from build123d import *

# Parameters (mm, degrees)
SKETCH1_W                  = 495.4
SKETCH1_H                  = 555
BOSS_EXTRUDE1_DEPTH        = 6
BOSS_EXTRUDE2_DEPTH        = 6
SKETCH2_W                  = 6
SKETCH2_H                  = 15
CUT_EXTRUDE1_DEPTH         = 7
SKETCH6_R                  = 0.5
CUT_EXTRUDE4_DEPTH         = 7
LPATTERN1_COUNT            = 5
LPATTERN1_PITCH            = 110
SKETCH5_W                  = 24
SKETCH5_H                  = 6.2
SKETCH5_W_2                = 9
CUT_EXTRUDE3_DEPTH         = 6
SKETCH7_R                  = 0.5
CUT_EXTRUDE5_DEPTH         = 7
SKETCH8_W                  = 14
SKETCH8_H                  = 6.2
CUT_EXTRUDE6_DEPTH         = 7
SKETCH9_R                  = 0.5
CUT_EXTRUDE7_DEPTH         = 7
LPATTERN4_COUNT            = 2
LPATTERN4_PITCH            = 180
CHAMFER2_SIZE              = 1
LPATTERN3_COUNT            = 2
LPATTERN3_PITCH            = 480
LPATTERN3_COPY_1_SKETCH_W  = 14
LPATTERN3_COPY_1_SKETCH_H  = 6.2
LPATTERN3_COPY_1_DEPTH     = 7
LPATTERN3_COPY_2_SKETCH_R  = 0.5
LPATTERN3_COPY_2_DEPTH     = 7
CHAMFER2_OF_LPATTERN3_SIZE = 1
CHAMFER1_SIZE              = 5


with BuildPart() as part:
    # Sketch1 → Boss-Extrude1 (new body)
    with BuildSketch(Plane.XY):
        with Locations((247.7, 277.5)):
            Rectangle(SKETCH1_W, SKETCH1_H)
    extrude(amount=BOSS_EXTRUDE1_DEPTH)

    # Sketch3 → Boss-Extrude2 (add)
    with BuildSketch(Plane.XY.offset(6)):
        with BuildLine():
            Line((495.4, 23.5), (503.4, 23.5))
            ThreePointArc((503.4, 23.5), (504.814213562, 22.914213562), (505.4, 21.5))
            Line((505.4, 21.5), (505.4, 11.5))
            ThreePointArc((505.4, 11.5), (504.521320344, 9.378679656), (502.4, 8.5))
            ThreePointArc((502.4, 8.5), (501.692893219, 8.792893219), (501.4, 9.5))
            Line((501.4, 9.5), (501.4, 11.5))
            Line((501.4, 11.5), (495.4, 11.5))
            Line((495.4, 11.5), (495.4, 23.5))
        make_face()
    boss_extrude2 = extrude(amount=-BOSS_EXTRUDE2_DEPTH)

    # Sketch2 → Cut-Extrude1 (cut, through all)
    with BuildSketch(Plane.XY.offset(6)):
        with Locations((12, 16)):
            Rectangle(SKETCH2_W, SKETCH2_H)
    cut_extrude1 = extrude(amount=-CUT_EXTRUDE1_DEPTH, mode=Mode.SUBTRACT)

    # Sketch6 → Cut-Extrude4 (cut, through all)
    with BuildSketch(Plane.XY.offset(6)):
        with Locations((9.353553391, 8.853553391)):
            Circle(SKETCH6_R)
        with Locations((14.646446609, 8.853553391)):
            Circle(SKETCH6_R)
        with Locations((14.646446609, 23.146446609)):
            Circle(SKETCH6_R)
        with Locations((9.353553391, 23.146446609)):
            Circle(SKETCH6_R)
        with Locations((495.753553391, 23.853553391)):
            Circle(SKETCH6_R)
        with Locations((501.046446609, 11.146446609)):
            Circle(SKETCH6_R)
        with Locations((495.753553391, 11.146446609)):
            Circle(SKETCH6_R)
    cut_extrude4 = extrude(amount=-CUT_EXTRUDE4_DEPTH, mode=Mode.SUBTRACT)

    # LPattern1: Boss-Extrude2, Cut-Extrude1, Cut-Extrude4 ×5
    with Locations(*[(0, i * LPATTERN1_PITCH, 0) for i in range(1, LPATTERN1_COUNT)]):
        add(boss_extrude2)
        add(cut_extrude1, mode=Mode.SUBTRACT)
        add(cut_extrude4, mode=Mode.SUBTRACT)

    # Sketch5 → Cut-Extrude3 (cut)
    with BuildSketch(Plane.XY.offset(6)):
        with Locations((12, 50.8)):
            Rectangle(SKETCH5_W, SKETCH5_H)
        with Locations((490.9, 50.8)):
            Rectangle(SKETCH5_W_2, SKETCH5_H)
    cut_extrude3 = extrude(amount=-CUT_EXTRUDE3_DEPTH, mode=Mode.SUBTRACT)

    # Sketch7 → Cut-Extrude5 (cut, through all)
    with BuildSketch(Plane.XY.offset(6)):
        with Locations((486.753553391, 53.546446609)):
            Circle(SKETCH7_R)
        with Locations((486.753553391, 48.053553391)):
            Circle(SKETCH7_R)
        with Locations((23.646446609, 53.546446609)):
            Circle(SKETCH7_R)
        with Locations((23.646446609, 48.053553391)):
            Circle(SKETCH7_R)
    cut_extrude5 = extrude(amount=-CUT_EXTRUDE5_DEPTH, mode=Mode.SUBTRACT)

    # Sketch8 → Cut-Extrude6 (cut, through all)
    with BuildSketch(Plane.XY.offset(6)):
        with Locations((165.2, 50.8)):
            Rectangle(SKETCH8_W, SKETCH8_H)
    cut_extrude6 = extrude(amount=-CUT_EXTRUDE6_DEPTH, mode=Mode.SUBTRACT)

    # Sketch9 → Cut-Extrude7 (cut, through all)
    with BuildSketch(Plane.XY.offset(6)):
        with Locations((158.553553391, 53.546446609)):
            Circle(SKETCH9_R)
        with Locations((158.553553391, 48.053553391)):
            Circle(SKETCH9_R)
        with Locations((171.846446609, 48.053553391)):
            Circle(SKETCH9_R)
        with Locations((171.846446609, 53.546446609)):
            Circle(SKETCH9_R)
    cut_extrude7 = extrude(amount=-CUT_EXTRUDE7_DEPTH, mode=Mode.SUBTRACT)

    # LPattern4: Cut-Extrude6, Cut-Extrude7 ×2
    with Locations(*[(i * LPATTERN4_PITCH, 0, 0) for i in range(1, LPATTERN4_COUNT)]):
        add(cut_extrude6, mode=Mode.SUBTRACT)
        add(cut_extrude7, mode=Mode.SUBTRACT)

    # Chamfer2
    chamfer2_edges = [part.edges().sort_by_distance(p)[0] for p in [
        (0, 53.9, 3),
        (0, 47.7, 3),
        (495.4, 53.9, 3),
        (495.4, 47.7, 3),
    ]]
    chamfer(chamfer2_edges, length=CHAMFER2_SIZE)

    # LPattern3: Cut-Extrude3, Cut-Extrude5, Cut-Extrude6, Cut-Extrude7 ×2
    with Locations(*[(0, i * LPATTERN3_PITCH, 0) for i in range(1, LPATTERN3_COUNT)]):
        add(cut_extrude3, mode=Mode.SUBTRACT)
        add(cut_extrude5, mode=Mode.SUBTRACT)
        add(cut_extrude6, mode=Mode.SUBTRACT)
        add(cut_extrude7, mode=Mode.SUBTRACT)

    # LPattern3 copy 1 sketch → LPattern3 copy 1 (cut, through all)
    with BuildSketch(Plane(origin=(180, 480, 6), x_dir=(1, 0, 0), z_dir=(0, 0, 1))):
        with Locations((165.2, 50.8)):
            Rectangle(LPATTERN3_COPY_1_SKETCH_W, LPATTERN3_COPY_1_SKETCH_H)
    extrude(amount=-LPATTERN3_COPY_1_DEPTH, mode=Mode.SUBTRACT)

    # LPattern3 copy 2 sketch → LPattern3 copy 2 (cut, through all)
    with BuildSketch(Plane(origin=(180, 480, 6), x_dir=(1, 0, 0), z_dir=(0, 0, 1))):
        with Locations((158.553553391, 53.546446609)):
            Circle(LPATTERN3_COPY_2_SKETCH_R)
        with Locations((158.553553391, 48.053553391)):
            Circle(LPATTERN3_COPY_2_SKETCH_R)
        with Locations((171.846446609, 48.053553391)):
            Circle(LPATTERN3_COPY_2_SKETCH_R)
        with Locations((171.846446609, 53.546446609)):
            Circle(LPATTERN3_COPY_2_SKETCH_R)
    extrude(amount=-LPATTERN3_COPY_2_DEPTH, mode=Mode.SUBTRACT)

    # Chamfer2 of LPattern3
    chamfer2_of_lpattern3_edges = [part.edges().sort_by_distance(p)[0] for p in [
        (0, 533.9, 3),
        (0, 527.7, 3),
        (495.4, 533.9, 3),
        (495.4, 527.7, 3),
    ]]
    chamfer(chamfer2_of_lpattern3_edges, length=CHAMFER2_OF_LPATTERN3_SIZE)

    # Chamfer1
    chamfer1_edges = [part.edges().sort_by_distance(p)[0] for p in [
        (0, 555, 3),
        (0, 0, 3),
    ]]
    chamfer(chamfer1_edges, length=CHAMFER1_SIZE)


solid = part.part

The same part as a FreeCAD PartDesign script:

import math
import FreeCAD as App
import Part
import Sketcher


def edges_at(feature, points):
    """Names of the edges that pass closest to the given points."""
    edges = feature.Shape.Edges
    near = lambda p: min(range(len(edges)), key=lambda i: edges[i].distToShape(Part.Vertex(*p))[0])
    return sorted({f"Edge{near(p) + 1}" for p in points})


def add_polygon(sketch, points):
    """Adds a closed chain of lines whose ends are joined by coincident constraints."""
    first, n = sketch.GeometryCount, len(points)
    for a, b in zip(points, points[1:] + points[:1]):
        sketch.addGeometry(Part.LineSegment(App.Vector(*a, 0), App.Vector(*b, 0)), False)
    for i in range(n):
        sketch.addConstraint(Sketcher.Constraint("Coincident", first + i, 2, first + (i + 1) % n, 1))

doc = App.newDocument("Part")
body = doc.addObject("PartDesign::Body", "Body")

sketch1 = doc.addObject("Sketcher::SketchObject", "Sketch")
body.addObject(sketch1)
sketch1.AttachmentSupport = (doc.XY_Plane, [""])
sketch1.MapMode = "FlatFace"
add_polygon(sketch1, [(0, 555), (0, 0), (495, 0), (495, 555)])
sketch1.addConstraint([
    Sketcher.Constraint("Vertical", 0),
    Sketcher.Constraint("Horizontal", 1),
    Sketcher.Constraint("Vertical", 2),
    Sketcher.Constraint("Horizontal", 3),
    Sketcher.Constraint("Coincident", 0, 2, -1, 1),
    Sketcher.Constraint("DistanceY", 0, 2, 0, 1, 555.0),
    Sketcher.Constraint("DistanceX", 1, 1, 1, 2, 495.4),
])
pad1 = doc.addObject("PartDesign::Pad", "Pad")
body.addObject(pad1)
pad1.Profile = sketch1
pad1.Length = 6

sketch2 = doc.addObject("Sketcher::SketchObject", "Sketch001")
body.addObject(sketch2)
sketch2.AttachmentSupport = (doc.XY_Plane, [""])
sketch2.MapMode = "FlatFace"
sketch2.AttachmentOffset = App.Placement(App.Vector(0, 0, 6), App.Rotation())
sketch2.addGeometry([
    Part.LineSegment(App.Vector(503.4, 23.5, 0), App.Vector(495.4, 23.5, 0)),
    Part.LineSegment(App.Vector(495.4, 23.5, 0), App.Vector(495.4, 11.5, 0)),
    Part.LineSegment(App.Vector(495.4, 11.5, 0), App.Vector(501.4, 11.5, 0)),
    Part.LineSegment(App.Vector(501.4, 11.5, 0), App.Vector(501.4, 9.5, 0)),
    Part.ArcOfCircle(Part.Circle(App.Vector(502.4, 9.5, 0), App.Vector(0, 0, 1), 1), math.radians(-180), math.radians(-90)),
    Part.ArcOfCircle(Part.Circle(App.Vector(502.4, 11.5, 0), App.Vector(0, 0, 1), 3), math.radians(-90), math.radians(0)),
    Part.LineSegment(App.Vector(505.4, 11.5, 0), App.Vector(505.4, 21.5, 0)),
    Part.ArcOfCircle(Part.Circle(App.Vector(503.4, 21.5, 0), App.Vector(0, 0, 1), 2), math.radians(0), math.radians(90)),
], False)
sketch2.addConstraint([
    Sketcher.Constraint("Coincident", 0, 2, 1, 1),
    Sketcher.Constraint("Coincident", 1, 2, 2, 1),
    Sketcher.Constraint("Coincident", 2, 2, 3, 1),
    Sketcher.Constraint("Tangent", 3, 2, 4, 1),
    Sketcher.Constraint("Tangent", 4, 2, 5, 1),
    Sketcher.Constraint("Tangent", 5, 2, 6, 1),
    Sketcher.Constraint("Tangent", 6, 2, 7, 1),
    Sketcher.Constraint("Tangent", 7, 2, 0, 1),
    Sketcher.Constraint("Horizontal", 0),
    Sketcher.Constraint("Vertical", 1),
    Sketcher.Constraint("Horizontal", 2),
    Sketcher.Constraint("Vertical", 3),
    Sketcher.Constraint("Vertical", 6),
    Sketcher.Constraint("Horizontal", 5, 3, 1, 2),
    Sketcher.Constraint("Vertical", 4, 3, 5, 3),
    Sketcher.Constraint("Radius", 4, 1.0),
    Sketcher.Constraint("Radius", 5, 3.0),
    Sketcher.Constraint("Radius", 7, 2.0),
    Sketcher.Constraint("DistanceX", 0, 2, 0, 1, 8.0),
    Sketcher.Constraint("DistanceY", 1, 2, 1, 1, 12.0),
    Sketcher.Constraint("DistanceX", -1, 1, 4, 3, 502.4),
    Sketcher.Constraint("DistanceY", -1, 1, 4, 3, 9.5),
])
pad2 = doc.addObject("PartDesign::Pad", "Pad001")
body.addObject(pad2)
pad2.Profile = sketch2
pad2.Length = 6
pad2.Reversed = True

sketch3 = doc.addObject("Sketcher::SketchObject", "Sketch002")
body.addObject(sketch3)
sketch3.AttachmentSupport = (doc.XY_Plane, [""])
sketch3.MapMode = "FlatFace"
sketch3.AttachmentOffset = App.Placement(App.Vector(0, 0, 6), App.Rotation())
add_polygon(sketch3, [(9, 24), (9, 8), (15, 8), (15, 24)])
sketch3.addConstraint([
    Sketcher.Constraint("Vertical", 0),
    Sketcher.Constraint("Horizontal", 1),
    Sketcher.Constraint("Vertical", 2),
    Sketcher.Constraint("Horizontal", 3),
    Sketcher.Constraint("DistanceX", 1, 1, 1, 2, 6.0),
    Sketcher.Constraint("DistanceY", 0, 2, 0, 1, 15.0),
    Sketcher.Constraint("DistanceX", -1, 1, 0, 2, 9.0),
    Sketcher.Constraint("DistanceY", -1, 1, 0, 2, 8.5),
])
pocket1 = doc.addObject("PartDesign::Pocket", "Pocket")
body.addObject(pocket1)
pocket1.Profile = sketch3
pocket1.Type = "ThroughAll"

sketch4 = doc.addObject("Sketcher::SketchObject", "Sketch003")
body.addObject(sketch4)
sketch4.AttachmentSupport = (doc.XY_Plane, [""])
sketch4.MapMode = "FlatFace"
sketch4.AttachmentOffset = App.Placement(App.Vector(0, 0, 6), App.Rotation())
sketch4.addGeometry([
    Part.Circle(App.Vector(9.4, 8.9, 0), App.Vector(0, 0, 1), 0.5),
    Part.Circle(App.Vector(14.6, 8.9, 0), App.Vector(0, 0, 1), 0.5),
    Part.Circle(App.Vector(14.6, 23.1, 0), App.Vector(0, 0, 1), 0.5),
    Part.Circle(App.Vector(9.4, 23.1, 0), App.Vector(0, 0, 1), 0.5),
    Part.Circle(App.Vector(495.8, 23.9, 0), App.Vector(0, 0, 1), 0.5),
    Part.Circle(App.Vector(501, 11.1, 0), App.Vector(0, 0, 1), 0.5),
    Part.Circle(App.Vector(495.8, 11.1, 0), App.Vector(0, 0, 1), 0.5),
], False)
sketch4.addConstraint([
    Sketcher.Constraint("Equal", 0, 1),
    Sketcher.Constraint("Equal", 1, 2),
    Sketcher.Constraint("Equal", 2, 3),
    Sketcher.Constraint("Equal", 3, 4),
    Sketcher.Constraint("Equal", 4, 5),
    Sketcher.Constraint("Equal", 5, 6),
    Sketcher.Constraint("Horizontal", 0, 3, 1, 3),
    Sketcher.Constraint("Horizontal", 2, 3, 3, 3),
    Sketcher.Constraint("Horizontal", 5, 3, 6, 3),
    Sketcher.Constraint("Vertical", 1, 3, 2, 3),
    Sketcher.Constraint("Vertical", 0, 3, 3, 3),
    Sketcher.Constraint("Vertical", 4, 3, 6, 3),
    Sketcher.Constraint("Diameter", 0, 1.0),
    Sketcher.Constraint("DistanceY", 1, 3, 4, 3, 15.0),
    Sketcher.Constraint("DistanceY", 5, 3, 2, 3, 12.0),
    Sketcher.Constraint("DistanceX", 3, 3, 4, 3, 486.4),
    Sketcher.Constraint("DistanceX", 1, 3, 5, 3, 486.4),
    Sketcher.Constraint("DistanceX", -1, 1, 0, 3, 9.353553),
    Sketcher.Constraint("DistanceY", -1, 1, 0, 3, 8.853553),
    Sketcher.Constraint("DistanceX", -1, 1, 1, 3, 14.646447),
    Sketcher.Constraint("DistanceY", -1, 1, 2, 3, 23.146447),
])
pocket2 = doc.addObject("PartDesign::Pocket", "Pocket001")
body.addObject(pocket2)
pocket2.Profile = sketch4
pocket2.Type = "ThroughAll"
doc.recompute()

linearpattern = doc.addObject("PartDesign::LinearPattern", "LinearPattern")
body.addObject(linearpattern)
linearpattern.Originals = [pad2, pocket1, pocket2]
linearpattern.Direction = (doc.Y_Axis, [""])
linearpattern.Mode = "offset"
linearpattern.Offset = 110
linearpattern.Occurrences = 5
body.Tip = linearpattern

sketch5 = doc.addObject("Sketcher::SketchObject", "Sketch004")
body.addObject(sketch5)
sketch5.AttachmentSupport = (doc.XY_Plane, [""])
sketch5.MapMode = "FlatFace"
sketch5.AttachmentOffset = App.Placement(App.Vector(0, 0, 6), App.Rotation())
add_polygon(sketch5, [(0, 54), (0, 48), (24, 48), (24, 54)])
add_polygon(sketch5, [(486, 54), (486, 48), (495, 48), (495, 54)])
sketch5.addConstraint([
    Sketcher.Constraint("Vertical", 0),
    Sketcher.Constraint("Horizontal", 1),
    Sketcher.Constraint("Vertical", 2),
    Sketcher.Constraint("Horizontal", 3),
    Sketcher.Constraint("Vertical", 4),
    Sketcher.Constraint("Horizontal", 5),
    Sketcher.Constraint("Vertical", 6),
    Sketcher.Constraint("Horizontal", 7),
    Sketcher.Constraint("PointOnObject", 0, 2, -2),
    Sketcher.Constraint("Horizontal", 1, 2, 4, 2),
    Sketcher.Constraint("Horizontal", 3, 2, 6, 2),
    Sketcher.Constraint("DistanceX", 1, 1, 1, 2, 24.0),
    Sketcher.Constraint("DistanceX", 5, 1, 5, 2, 9.0),
    Sketcher.Constraint("DistanceY", 0, 2, 0, 1, 6.2),
    Sketcher.Constraint("DistanceY", -1, 1, 0, 2, 47.7),
    Sketcher.Constraint("DistanceX", -1, 1, 4, 2, 486.4),
])
pocket3 = doc.addObject("PartDesign::Pocket", "Pocket002")
body.addObject(pocket3)
pocket3.Profile = sketch5
pocket3.Length = 6

sketch6 = doc.addObject("Sketcher::SketchObject", "Sketch005")
body.addObject(sketch6)
sketch6.AttachmentSupport = (doc.XY_Plane, [""])
sketch6.MapMode = "FlatFace"
sketch6.AttachmentOffset = App.Placement(App.Vector(0, 0, 6), App.Rotation())
sketch6.addGeometry([
    Part.Circle(App.Vector(486.8, 53.5, 0), App.Vector(0, 0, 1), 0.5),
    Part.Circle(App.Vector(486.8, 48.1, 0), App.Vector(0, 0, 1), 0.5),
    Part.Circle(App.Vector(23.6, 53.5, 0), App.Vector(0, 0, 1), 0.5),
    Part.Circle(App.Vector(23.6, 48.1, 0), App.Vector(0, 0, 1), 0.5),
], False)
sketch6.addConstraint([
    Sketcher.Constraint("Equal", 0, 1),
    Sketcher.Constraint("Equal", 1, 2),
    Sketcher.Constraint("Equal", 2, 3),
    Sketcher.Constraint("Horizontal", 0, 3, 2, 3),
    Sketcher.Constraint("Horizontal", 1, 3, 3, 3),
    Sketcher.Constraint("Vertical", 0, 3, 1, 3),
    Sketcher.Constraint("Vertical", 2, 3, 3, 3),
    Sketcher.Constraint("Diameter", 0, 1.0),
    Sketcher.Constraint("DistanceX", -1, 1, 0, 3, 486.753553),
    Sketcher.Constraint("DistanceY", -1, 1, 0, 3, 53.546447),
    Sketcher.Constraint("DistanceY", -1, 1, 1, 3, 48.053553),
    Sketcher.Constraint("DistanceX", -1, 1, 2, 3, 23.646447),
])
pocket4 = doc.addObject("PartDesign::Pocket", "Pocket003")
body.addObject(pocket4)
pocket4.Profile = sketch6
pocket4.Type = "ThroughAll"

sketch7 = doc.addObject("Sketcher::SketchObject", "Sketch006")
body.addObject(sketch7)
sketch7.AttachmentSupport = (doc.XY_Plane, [""])
sketch7.MapMode = "FlatFace"
sketch7.AttachmentOffset = App.Placement(App.Vector(0, 0, 6), App.Rotation())
add_polygon(sketch7, [(158, 54), (158, 48), (172, 48), (172, 54)])
sketch7.addConstraint([
    Sketcher.Constraint("Vertical", 0),
    Sketcher.Constraint("Horizontal", 1),
    Sketcher.Constraint("Vertical", 2),
    Sketcher.Constraint("Horizontal", 3),
    Sketcher.Constraint("DistanceX", 1, 1, 1, 2, 14.0),
    Sketcher.Constraint("DistanceY", 0, 2, 0, 1, 6.2),
    Sketcher.Constraint("DistanceX", -1, 1, 0, 2, 158.2),
    Sketcher.Constraint("DistanceY", -1, 1, 0, 2, 47.7),
])
pocket5 = doc.addObject("PartDesign::Pocket", "Pocket004")
body.addObject(pocket5)
pocket5.Profile = sketch7
pocket5.Type = "ThroughAll"

sketch8 = doc.addObject("Sketcher::SketchObject", "Sketch007")
body.addObject(sketch8)
sketch8.AttachmentSupport = (doc.XY_Plane, [""])
sketch8.MapMode = "FlatFace"
sketch8.AttachmentOffset = App.Placement(App.Vector(0, 0, 6), App.Rotation())
sketch8.addGeometry([
    Part.Circle(App.Vector(158.6, 53.5, 0), App.Vector(0, 0, 1), 0.5),
    Part.Circle(App.Vector(158.6, 48.1, 0), App.Vector(0, 0, 1), 0.5),
    Part.Circle(App.Vector(171.8, 48.1, 0), App.Vector(0, 0, 1), 0.5),
    Part.Circle(App.Vector(171.8, 53.5, 0), App.Vector(0, 0, 1), 0.5),
], False)
sketch8.addConstraint([
    Sketcher.Constraint("Equal", 0, 1),
    Sketcher.Constraint("Equal", 1, 2),
    Sketcher.Constraint("Equal", 2, 3),
    Sketcher.Constraint("Horizontal", 1, 3, 2, 3),
    Sketcher.Constraint("Horizontal", 0, 3, 3, 3),
    Sketcher.Constraint("Vertical", 0, 3, 1, 3),
    Sketcher.Constraint("Vertical", 2, 3, 3, 3),
    Sketcher.Constraint("Diameter", 0, 1.0),
    Sketcher.Constraint("DistanceX", -1, 1, 0, 3, 158.553553),
    Sketcher.Constraint("DistanceY", -1, 1, 0, 3, 53.546447),
    Sketcher.Constraint("DistanceY", -1, 1, 1, 3, 48.053553),
    Sketcher.Constraint("DistanceX", -1, 1, 2, 3, 171.846447),
])
pocket6 = doc.addObject("PartDesign::Pocket", "Pocket005")
body.addObject(pocket6)
pocket6.Profile = sketch8
pocket6.Type = "ThroughAll"
doc.recompute()

linearpattern2 = doc.addObject("PartDesign::LinearPattern", "LinearPattern001")
body.addObject(linearpattern2)
linearpattern2.Originals = [pocket5, pocket6]
linearpattern2.Direction = (doc.X_Axis, [""])
linearpattern2.Mode = "offset"
linearpattern2.Offset = 180
linearpattern2.Occurrences = 2
body.Tip = linearpattern2
doc.recompute()

chamfer = doc.addObject("PartDesign::Chamfer", "Chamfer")
body.addObject(chamfer)
chamfer.Base = (linearpattern2, edges_at(linearpattern2, [
    (0, 53.9, 3),
    (0, 47.7, 3),
    (495.4, 53.9, 3),
    (495.4, 47.7, 3),
]))
chamfer.Size = 1
doc.recompute()

linearpattern3 = doc.addObject("PartDesign::LinearPattern", "LinearPattern002")
body.addObject(linearpattern3)
linearpattern3.Originals = [pocket3, pocket4, pocket5, pocket6]
linearpattern3.Direction = (doc.Y_Axis, [""])
linearpattern3.Mode = "offset"
linearpattern3.Offset = 480
linearpattern3.Occurrences = 2
body.Tip = linearpattern3

sketch9 = doc.addObject("Sketcher::SketchObject", "Sketch008")
body.addObject(sketch9)
sketch9.AttachmentSupport = (doc.XY_Plane, [""])
sketch9.MapMode = "FlatFace"
sketch9.AttachmentOffset = App.Placement(App.Vector(0, 0, 6), App.Rotation())
add_polygon(sketch9, [(338, 534), (338, 528), (352, 528), (352, 534)])
sketch9.addConstraint([
    Sketcher.Constraint("Vertical", 0),
    Sketcher.Constraint("Horizontal", 1),
    Sketcher.Constraint("Vertical", 2),
    Sketcher.Constraint("Horizontal", 3),
    Sketcher.Constraint("DistanceX", 1, 1, 1, 2, 14.0),
    Sketcher.Constraint("DistanceY", 0, 2, 0, 1, 6.2),
    Sketcher.Constraint("DistanceX", -1, 1, 0, 2, 338.2),
    Sketcher.Constraint("DistanceY", -1, 1, 0, 2, 527.7),
])
pocket7 = doc.addObject("PartDesign::Pocket", "Pocket006")
body.addObject(pocket7)
pocket7.Profile = sketch9
pocket7.Type = "ThroughAll"

sketch10 = doc.addObject("Sketcher::SketchObject", "Sketch009")
body.addObject(sketch10)
sketch10.AttachmentSupport = (doc.XY_Plane, [""])
sketch10.MapMode = "FlatFace"
sketch10.AttachmentOffset = App.Placement(App.Vector(0, 0, 6), App.Rotation())
sketch10.addGeometry([
    Part.Circle(App.Vector(338.6, 533.5, 0), App.Vector(0, 0, 1), 0.5),
    Part.Circle(App.Vector(338.6, 528.1, 0), App.Vector(0, 0, 1), 0.5),
    Part.Circle(App.Vector(351.8, 528.1, 0), App.Vector(0, 0, 1), 0.5),
    Part.Circle(App.Vector(351.8, 533.5, 0), App.Vector(0, 0, 1), 0.5),
], False)
sketch10.addConstraint([
    Sketcher.Constraint("Equal", 0, 1),
    Sketcher.Constraint("Equal", 1, 2),
    Sketcher.Constraint("Equal", 2, 3),
    Sketcher.Constraint("Horizontal", 1, 3, 2, 3),
    Sketcher.Constraint("Horizontal", 0, 3, 3, 3),
    Sketcher.Constraint("Vertical", 0, 3, 1, 3),
    Sketcher.Constraint("Vertical", 2, 3, 3, 3),
    Sketcher.Constraint("Diameter", 0, 1.0),
    Sketcher.Constraint("DistanceX", -1, 1, 0, 3, 338.553553),
    Sketcher.Constraint("DistanceY", -1, 1, 0, 3, 533.546447),
    Sketcher.Constraint("DistanceY", -1, 1, 1, 3, 528.053553),
    Sketcher.Constraint("DistanceX", -1, 1, 2, 3, 351.846447),
])
pocket8 = doc.addObject("PartDesign::Pocket", "Pocket007")
body.addObject(pocket8)
pocket8.Profile = sketch10
pocket8.Type = "ThroughAll"
doc.recompute()

chamfer2 = doc.addObject("PartDesign::Chamfer", "Chamfer001")
body.addObject(chamfer2)
chamfer2.Base = (pocket8, edges_at(pocket8, [
    (0, 533.9, 3),
    (0, 527.7, 3),
    (495.4, 533.9, 3),
    (495.4, 527.7, 3),
]))
chamfer2.Size = 1
doc.recompute()

chamfer3 = doc.addObject("PartDesign::Chamfer", "Chamfer002")
body.addObject(chamfer3)
chamfer3.Base = (chamfer2, edges_at(chamfer2, [(0, 555, 3), (0, 0, 3)]))
chamfer3.Size = 5

doc.recompute()
